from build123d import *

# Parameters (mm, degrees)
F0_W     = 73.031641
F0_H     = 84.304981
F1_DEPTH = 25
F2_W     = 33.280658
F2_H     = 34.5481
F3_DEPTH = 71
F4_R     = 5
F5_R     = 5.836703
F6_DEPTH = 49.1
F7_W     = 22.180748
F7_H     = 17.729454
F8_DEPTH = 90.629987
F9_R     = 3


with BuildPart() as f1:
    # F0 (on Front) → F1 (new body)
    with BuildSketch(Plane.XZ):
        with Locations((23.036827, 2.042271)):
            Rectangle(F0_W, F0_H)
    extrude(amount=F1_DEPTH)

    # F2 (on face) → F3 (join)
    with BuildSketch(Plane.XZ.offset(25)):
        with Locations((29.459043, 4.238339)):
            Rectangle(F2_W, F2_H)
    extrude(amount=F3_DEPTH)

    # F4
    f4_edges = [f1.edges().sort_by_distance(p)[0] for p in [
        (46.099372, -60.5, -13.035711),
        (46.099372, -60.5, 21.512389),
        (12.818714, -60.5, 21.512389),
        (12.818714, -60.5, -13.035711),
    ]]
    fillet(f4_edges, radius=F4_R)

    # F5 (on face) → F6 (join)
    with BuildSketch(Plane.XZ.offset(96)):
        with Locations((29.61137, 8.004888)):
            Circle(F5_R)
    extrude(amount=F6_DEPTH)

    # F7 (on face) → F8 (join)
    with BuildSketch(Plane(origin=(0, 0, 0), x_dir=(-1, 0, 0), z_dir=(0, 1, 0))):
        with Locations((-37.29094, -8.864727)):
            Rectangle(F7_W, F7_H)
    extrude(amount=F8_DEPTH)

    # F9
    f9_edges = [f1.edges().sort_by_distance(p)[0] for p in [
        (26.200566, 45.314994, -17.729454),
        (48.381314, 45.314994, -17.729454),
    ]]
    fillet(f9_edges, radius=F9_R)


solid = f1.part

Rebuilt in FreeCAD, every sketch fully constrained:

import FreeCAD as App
import Part
import Sketcher


def edges_at(feature, points):
    """Names of the edges that pass closest to the given points."""
    edges = feature.Shape.Edges
    near = lambda p: min(range(len(edges)), key=lambda i: edges[i].distToShape(Part.Vertex(*p))[0])
    return sorted({f"Edge{near(p) + 1}" for p in points})


def add_polygon(sketch, points):
    """Adds a closed chain of lines whose ends are joined by coincident constraints."""
    first, n = sketch.GeometryCount, len(points)
    for a, b in zip(points, points[1:] + points[:1]):
        sketch.addGeometry(Part.LineSegment(App.Vector(*a, 0), App.Vector(*b, 0)), False)
    for i in range(n):
        sketch.addConstraint(Sketcher.Constraint("Coincident", first + i, 2, first + (i + 1) % n, 1))

doc = App.newDocument("Part")
params = doc.addObject("Spreadsheet::Sheet", "Params")
for row, (alias, value) in enumerate([
    ("pad1_length", "25 mm"),
    ("pad2_length", "71 mm"),
    ("fillet_radius", "5 mm"),
    ("pad3_length", "49.1 mm"),
    ("pad4_length", "90.629987 mm"),
    ("fillet2_radius", "3 mm"),
], start=1):
    params.set(f"A{row}", alias)
    params.set(f"B{row}", "=" + value)
    params.setAlias(f"B{row}", alias)

body = doc.addObject("PartDesign::Body", "Body")

sketch1 = body.newObject("Sketcher::SketchObject", "Sketch")
sketch1.AttachmentSupport = (doc.getObject("XZ_Plane"), [""])
sketch1.MapMode = "FlatFace"
add_polygon(sketch1, [(-13.478993, 44.194761), (-13.478993, -40.110219), (59.552647, -40.110219), (59.552647, 44.194761)])
sketch1.addConstraint(Sketcher.Constraint("Vertical", 0))
sketch1.addConstraint(Sketcher.Constraint("Horizontal", 1))
sketch1.addConstraint(Sketcher.Constraint("Vertical", 2))
sketch1.addConstraint(Sketcher.Constraint("Horizontal", 3))
sketch1.addConstraint(Sketcher.Constraint("DistanceX", 1, 1, 1, 2, 73.031641))
sketch1.addConstraint(Sketcher.Constraint("DistanceY", 0, 2, 0, 1, 84.304981))
sketch1.addConstraint(Sketcher.Constraint("DistanceY", 0, 2, -1, 1, 40.110219))
sketch1.addConstraint(Sketcher.Constraint("DistanceX", 0, 2, -1, 1, 13.478993))
pad1 = body.newObject("PartDesign::Pad", "Pad")
pad1.Profile = sketch1
pad1.setExpression("Length", "Params.pad1_length")

sketch2 = body.newObject("Sketcher::SketchObject", "Sketch001")
sketch2.AttachmentSupport = (doc.getObject("XZ_Plane"), [""])
sketch2.MapMode = "FlatFace"
sketch2.AttachmentOffset = App.Placement(App.Vector(0, 0, 25), App.Rotation())
add_polygon(sketch2, [(12.818714, 21.512389), (12.818714, -13.035711), (46.099372, -13.035711), (46.099372, 21.512389)])
sketch2.addConstraint(Sketcher.Constraint("Vertical", 0))
sketch2.addConstraint(Sketcher.Constraint("Horizontal", 1))
sketch2.addConstraint(Sketcher.Constraint("Vertical", 2))
sketch2.addConstraint(Sketcher.Constraint("Horizontal", 3))
sketch2.addConstraint(Sketcher.Constraint("DistanceY", 0, 2, 0, 1, 34.5481))
sketch2.addConstraint(Sketcher.Constraint("DistanceX", 1, 1, 1, 2, 33.280658))
sketch2.addConstraint(Sketcher.Constraint("DistanceY", 0, 2, -1, 1, 13.035711))
sketch2.addConstraint(Sketcher.Constraint("DistanceX", -1, 1, 0, 2, 12.818714))
pad2 = body.newObject("PartDesign::Pad", "Pad001")
pad2.Profile = sketch2
pad2.setExpression("Length", "Params.pad2_length")
doc.recompute()

fillet = body.newObject("PartDesign::Fillet", "Fillet")
fillet.Base = (pad2, edges_at(pad2, [
    (46.099, -60.5, -13.036),
    (46.099, -60.5, 21.512),
    (12.819, -60.5, 21.512),
    (12.819, -60.5, -13.036),
]))
fillet.setExpression("Radius", "Params.fillet_radius")

sketch3 = body.newObject("Sketcher::SketchObject", "Sketch002")
sketch3.AttachmentSupport = (doc.getObject("XZ_Plane"), [""])
sketch3.MapMode = "FlatFace"
sketch3.AttachmentOffset = App.Placement(App.Vector(0, 0, 96), App.Rotation())
sketch3.addGeometry(Part.Circle(App.Vector(29.61137, 8.004888, 0), App.Vector(0, 0, 1), 5.836703), False)
sketch3.addConstraint(Sketcher.Constraint("Diameter", 0, 11.673406))
sketch3.addConstraint(Sketcher.Constraint("DistanceX", -1, 1, 0, 3, 29.61137))
sketch3.addConstraint(Sketcher.Constraint("DistanceY", -1, 1, 0, 3, 8.004888))
pad3 = body.newObject("PartDesign::Pad", "Pad002")
pad3.Profile = sketch3
pad3.setExpression("Length", "Params.pad3_length")

sketch4 = body.newObject("Sketcher::SketchObject", "Sketch003")
sketch4.AttachmentSupport = (doc.getObject("XZ_Plane"), [""])
sketch4.MapMode = "FlatFace"
add_polygon(sketch4, [(48.381314, 0), (48.381314, -17.729454), (26.200566, -17.729454), (26.200566, 0)])
sketch4.addConstraint(Sketcher.Constraint("Vertical", 0))
sketch4.addConstraint(Sketcher.Constraint("Horizontal", 1))
sketch4.addConstraint(Sketcher.Constraint("Vertical", 2))
sketch4.addConstraint(Sketcher.Constraint("Horizontal", 3))
sketch4.addConstraint(Sketcher.Constraint("PointOnObject", 2, 2, -1))
sketch4.addConstraint(Sketcher.Constraint("DistanceX", 1, 2, 1, 1, 22.180748))
sketch4.addConstraint(Sketcher.Constraint("DistanceY", 0, 2, 0, 1, 17.729454))
sketch4.addConstraint(Sketcher.Constraint("DistanceX", -1, 1, 0, 2, 48.381314))
pad4 = body.newObject("PartDesign::Pad", "Pad003")
pad4.Profile = sketch4
pad4.setExpression("Length", "Params.pad4_length")
pad4.Reversed = True
doc.recompute()

fillet2 = body.newObject("PartDesign::Fillet", "Fillet001")
fillet2.Base = (pad4, edges_at(pad4, [(26.201, 45.315, -17.729), (48.381, 45.315, -17.729)]))
fillet2.setExpression("Radius", "Params.fillet2_radius")

doc.recompute()
